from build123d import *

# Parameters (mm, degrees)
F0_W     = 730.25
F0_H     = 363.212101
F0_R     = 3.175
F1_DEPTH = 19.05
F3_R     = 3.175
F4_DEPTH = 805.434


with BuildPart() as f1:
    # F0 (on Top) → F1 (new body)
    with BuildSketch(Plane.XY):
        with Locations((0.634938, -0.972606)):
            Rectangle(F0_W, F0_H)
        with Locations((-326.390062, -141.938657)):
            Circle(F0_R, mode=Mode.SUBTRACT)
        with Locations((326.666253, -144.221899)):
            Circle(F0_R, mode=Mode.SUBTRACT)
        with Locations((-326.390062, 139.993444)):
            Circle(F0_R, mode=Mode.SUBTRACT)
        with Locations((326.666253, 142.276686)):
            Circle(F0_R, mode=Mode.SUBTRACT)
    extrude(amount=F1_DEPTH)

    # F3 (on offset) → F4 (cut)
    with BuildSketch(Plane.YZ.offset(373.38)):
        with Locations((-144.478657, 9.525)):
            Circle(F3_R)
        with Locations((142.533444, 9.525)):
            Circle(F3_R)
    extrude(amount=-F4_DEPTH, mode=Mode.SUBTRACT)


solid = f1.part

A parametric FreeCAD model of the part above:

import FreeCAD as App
import Part
import Sketcher
Q = App.Units.Quantity

doc = App.newDocument("Part")
body = doc.addObject("PartDesign::Body", "Body")

sketch1 = doc.addObject("Sketcher::SketchObject", "Sketch")
body.addObject(sketch1)
sketch1.AttachmentSupport = (doc.XY_Plane, [""])
sketch1.MapMode = "FlatFace"
sketch1.addGeometry([
    Part.LineSegment(App.Vector(-364.490062, 180.633444, 0), App.Vector(-364.490062, -182.578656, 0)),
    Part.LineSegment(App.Vector(-364.490062, -182.578656, 0), App.Vector(365.759938, -182.578656, 0)),
    Part.LineSegment(App.Vector(365.759938, -182.578656, 0), App.Vector(365.759938, 180.633444, 0)),
    Part.LineSegment(App.Vector(365.759938, 180.633444, 0), App.Vector(-364.490062, 180.633444, 0)),
    Part.Circle(App.Vector(-326.390062, -141.938657, 0), App.Vector(0, 0, 1), 3.175),
    Part.Circle(App.Vector(326.666253, -144.221899, 0), App.Vector(0, 0, 1), 3.175),
    Part.Circle(App.Vector(-326.390062, 139.993444, 0), App.Vector(0, 0, 1), 3.175),
    Part.Circle(App.Vector(326.666253, 142.276686, 0), App.Vector(0, 0, 1), 3.175),
], False)
sketch1.addConstraint([
    Sketcher.Constraint("Coincident", 0, 2, 1, 1),
    Sketcher.Constraint("Coincident", 1, 2, 2, 1),
    Sketcher.Constraint("Coincident", 2, 2, 3, 1),
    Sketcher.Constraint("Coincident", 3, 2, 0, 1),
    Sketcher.Constraint("Vertical", 0),
    Sketcher.Constraint("Horizontal", 1),
    Sketcher.Constraint("Vertical", 2),
    Sketcher.Constraint("Horizontal", 3),
    Sketcher.Constraint("Equal", 4, 5),
    Sketcher.Constraint("Equal", 5, 6),
    Sketcher.Constraint("Equal", 6, 7),
    Sketcher.Constraint("Vertical", 4, 3, 6, 3),
    Sketcher.Constraint("Vertical", 5, 3, 7, 3),
    Sketcher.Constraint("Diameter", 4, Q("0.25 in")),
    Sketcher.Constraint("DistanceX", 1, 1, 1, 2, Q("28.75 in")),
    Sketcher.Constraint("DistanceX", 0, 2, 4, 3, Q("1.5 in")),
    Sketcher.Constraint("DistanceY", 0, 2, 4, 3, Q("1.6 in")),
    Sketcher.Constraint("DistanceY", 6, 3, 2, 2, Q("1.6 in")),
    Sketcher.Constraint("DistanceY", 0, 2, 0, 1, Q("363.212101 mm")),
    Sketcher.Constraint("DistanceY", 5, 3, -1, 1, Q("144.221899 mm")),
    Sketcher.Constraint("DistanceX", 4, 3, -1, 1, Q("326.390062 mm")),
    Sketcher.Constraint("DistanceY", 7, 3, 2, 2, Q("38.356758 mm")),
    Sketcher.Constraint("DistanceY", 4, 3, -1, 1, Q("141.938657 mm")),
    Sketcher.Constraint("DistanceX", -1, 1, 5, 3, Q("326.666253 mm")),
])
pad1 = doc.addObject("PartDesign::Pad", "Pad")
body.addObject(pad1)
pad1.Profile = sketch1
pad1.Length = Q("0.75 in")

sketch2 = doc.addObject("Sketcher::SketchObject", "Sketch001")
body.addObject(sketch2)
sketch2.AttachmentSupport = (doc.YZ_Plane, [""])
sketch2.MapMode = "FlatFace"
sketch2.AttachmentOffset = App.Placement(App.Vector(0, 0, 14.7 * 25.4), App.Rotation())
sketch2.addGeometry([
    Part.Circle(App.Vector(-144.478657, 9.525, 0), App.Vector(0, 0, 1), 3.175),
    Part.Circle(App.Vector(142.533444, 9.525, 0), App.Vector(0, 0, 1), 3.175),
], False)
sketch2.addConstraint([
    Sketcher.Constraint("Equal", 0, 1),
    Sketcher.Constraint("Horizontal", 0, 3, 1, 3),
    Sketcher.Constraint("Diameter", 0, Q("0.25 in")),
    Sketcher.Constraint("DistanceY", -1, 1, 0, 3, Q("0.375 in")),
    Sketcher.Constraint("DistanceX", 0, 3, 1, 3, Q("287.012101 mm")),
    Sketcher.Constraint("DistanceX", 0, 3, -1, 1, Q("144.478657 mm")),
])
pocket1 = doc.addObject("PartDesign::Pocket", "Pocket")
body.addObject(pocket1)
pocket1.Profile = sketch2
pocket1.Length = Q("31.71 in")

doc.recompute()
